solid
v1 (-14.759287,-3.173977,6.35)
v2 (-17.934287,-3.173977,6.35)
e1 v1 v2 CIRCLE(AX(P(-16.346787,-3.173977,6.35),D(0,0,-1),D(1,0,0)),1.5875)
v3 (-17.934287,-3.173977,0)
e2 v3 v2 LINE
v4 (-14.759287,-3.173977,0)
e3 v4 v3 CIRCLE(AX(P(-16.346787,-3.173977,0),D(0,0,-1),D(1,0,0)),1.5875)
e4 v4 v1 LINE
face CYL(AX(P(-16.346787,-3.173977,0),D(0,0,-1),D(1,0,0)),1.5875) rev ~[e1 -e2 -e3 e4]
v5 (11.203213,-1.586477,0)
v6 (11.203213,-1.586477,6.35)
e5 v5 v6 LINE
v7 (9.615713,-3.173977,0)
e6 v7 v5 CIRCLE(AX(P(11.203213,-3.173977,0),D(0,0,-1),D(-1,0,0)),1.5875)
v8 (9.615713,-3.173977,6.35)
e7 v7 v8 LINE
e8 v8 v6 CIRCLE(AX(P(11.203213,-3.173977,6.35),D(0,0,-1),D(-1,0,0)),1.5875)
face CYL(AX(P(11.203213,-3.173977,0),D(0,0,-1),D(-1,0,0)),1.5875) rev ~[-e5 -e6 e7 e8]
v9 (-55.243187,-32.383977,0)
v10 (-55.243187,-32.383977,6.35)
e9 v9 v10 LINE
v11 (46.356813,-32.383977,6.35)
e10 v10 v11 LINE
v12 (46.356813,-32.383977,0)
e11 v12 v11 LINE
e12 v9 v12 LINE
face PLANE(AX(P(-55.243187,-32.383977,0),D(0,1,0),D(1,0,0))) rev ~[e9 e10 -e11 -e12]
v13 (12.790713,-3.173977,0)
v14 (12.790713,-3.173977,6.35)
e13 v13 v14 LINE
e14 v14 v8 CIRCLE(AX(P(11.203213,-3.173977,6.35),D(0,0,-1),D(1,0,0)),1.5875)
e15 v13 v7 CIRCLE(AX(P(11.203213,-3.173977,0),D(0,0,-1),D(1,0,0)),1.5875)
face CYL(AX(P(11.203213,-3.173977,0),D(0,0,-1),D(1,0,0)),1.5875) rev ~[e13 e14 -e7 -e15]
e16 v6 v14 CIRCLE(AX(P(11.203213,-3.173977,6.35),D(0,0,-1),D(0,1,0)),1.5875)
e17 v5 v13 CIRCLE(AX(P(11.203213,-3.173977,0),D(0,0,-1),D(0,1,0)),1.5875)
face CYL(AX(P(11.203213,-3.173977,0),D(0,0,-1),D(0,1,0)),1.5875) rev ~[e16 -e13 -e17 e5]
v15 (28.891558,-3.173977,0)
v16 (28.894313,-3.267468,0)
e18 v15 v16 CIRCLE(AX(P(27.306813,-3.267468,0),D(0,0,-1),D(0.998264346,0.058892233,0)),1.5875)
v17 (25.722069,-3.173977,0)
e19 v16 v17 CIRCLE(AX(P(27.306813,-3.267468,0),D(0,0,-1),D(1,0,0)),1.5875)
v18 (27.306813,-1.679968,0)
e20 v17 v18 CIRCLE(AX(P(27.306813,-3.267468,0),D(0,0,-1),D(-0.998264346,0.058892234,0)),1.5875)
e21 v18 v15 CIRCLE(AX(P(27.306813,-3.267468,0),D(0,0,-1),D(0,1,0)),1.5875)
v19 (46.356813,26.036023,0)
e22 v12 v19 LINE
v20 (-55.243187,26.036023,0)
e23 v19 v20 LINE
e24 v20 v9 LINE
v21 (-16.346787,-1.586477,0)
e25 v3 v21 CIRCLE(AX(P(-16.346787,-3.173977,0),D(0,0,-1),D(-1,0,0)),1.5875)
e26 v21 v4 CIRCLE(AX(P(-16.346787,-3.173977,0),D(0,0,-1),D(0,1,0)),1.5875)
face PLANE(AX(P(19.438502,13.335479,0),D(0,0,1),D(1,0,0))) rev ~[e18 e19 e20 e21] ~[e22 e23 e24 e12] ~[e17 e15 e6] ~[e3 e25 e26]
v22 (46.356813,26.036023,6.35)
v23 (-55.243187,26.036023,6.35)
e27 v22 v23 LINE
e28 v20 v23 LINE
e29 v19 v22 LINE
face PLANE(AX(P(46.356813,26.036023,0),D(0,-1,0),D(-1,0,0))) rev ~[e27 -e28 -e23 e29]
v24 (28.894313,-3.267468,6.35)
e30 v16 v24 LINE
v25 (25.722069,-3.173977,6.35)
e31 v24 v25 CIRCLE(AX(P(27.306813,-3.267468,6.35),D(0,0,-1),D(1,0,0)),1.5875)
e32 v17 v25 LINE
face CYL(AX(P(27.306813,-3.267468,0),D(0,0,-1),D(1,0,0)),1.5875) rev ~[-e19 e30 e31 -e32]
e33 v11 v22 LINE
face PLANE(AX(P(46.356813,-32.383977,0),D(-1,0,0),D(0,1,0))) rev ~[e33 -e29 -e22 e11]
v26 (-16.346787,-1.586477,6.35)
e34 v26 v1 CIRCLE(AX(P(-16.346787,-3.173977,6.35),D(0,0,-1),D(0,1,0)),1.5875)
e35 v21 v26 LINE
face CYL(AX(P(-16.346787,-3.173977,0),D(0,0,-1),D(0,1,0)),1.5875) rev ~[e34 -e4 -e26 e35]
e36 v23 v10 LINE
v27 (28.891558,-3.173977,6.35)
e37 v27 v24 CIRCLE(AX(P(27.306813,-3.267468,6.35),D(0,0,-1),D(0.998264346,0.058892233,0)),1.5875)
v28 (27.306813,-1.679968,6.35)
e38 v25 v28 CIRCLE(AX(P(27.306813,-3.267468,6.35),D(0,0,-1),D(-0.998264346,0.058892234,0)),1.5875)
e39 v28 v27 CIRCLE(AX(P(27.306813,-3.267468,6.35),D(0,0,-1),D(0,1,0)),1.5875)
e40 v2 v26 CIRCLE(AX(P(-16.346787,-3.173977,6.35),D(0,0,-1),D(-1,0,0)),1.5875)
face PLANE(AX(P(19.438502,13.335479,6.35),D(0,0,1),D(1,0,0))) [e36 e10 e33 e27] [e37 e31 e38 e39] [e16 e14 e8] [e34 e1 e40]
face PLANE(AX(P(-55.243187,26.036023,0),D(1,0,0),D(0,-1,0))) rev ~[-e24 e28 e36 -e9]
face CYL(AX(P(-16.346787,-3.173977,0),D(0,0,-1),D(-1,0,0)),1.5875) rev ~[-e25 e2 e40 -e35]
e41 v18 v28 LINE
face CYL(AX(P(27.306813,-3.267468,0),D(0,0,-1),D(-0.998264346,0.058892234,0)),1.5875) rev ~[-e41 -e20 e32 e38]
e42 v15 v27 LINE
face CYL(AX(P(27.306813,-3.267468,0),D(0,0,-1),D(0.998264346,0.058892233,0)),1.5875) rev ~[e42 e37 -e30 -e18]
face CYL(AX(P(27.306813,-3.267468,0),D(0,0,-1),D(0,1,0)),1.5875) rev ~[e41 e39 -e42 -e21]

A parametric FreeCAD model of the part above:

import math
import FreeCAD as App
import Part
import Sketcher
Q = App.Units.Quantity


def add_polygon(sketch, points):
    """Adds a closed chain of lines whose ends are joined by coincident constraints."""
    first, n = sketch.GeometryCount, len(points)
    for a, b in zip(points, points[1:] + points[:1]):
        sketch.addGeometry(Part.LineSegment(App.Vector(*a, 0), App.Vector(*b, 0)), False)
    for i in range(n):
        sketch.addConstraint(Sketcher.Constraint("Coincident", first + i, 2, first + (i + 1) % n, 1))

doc = App.newDocument("Part")
body = doc.addObject("PartDesign::Body", "Body")

# Sketch on XY plane
sketch1 = body.newObject("Sketcher::SketchObject", "Sketch")
sketch1.AttachmentSupport = (doc.getObject("XY_Plane"), [""])
sketch1.MapMode = "FlatFace"
add_polygon(sketch1, [(-55.24, 26.04), (-55.24, -32.38), (46.36, -32.38), (46.36, 26.04)])  # lines 0-3
sketch1.addGeometry(Part.ArcOfCircle(Part.Circle(App.Vector(-16.35, -3.17, 0), App.Vector(0, 0, 1), 1.59), math.radians(180), math.radians(360)), False)  # 4
sketch1.addGeometry(Part.ArcOfCircle(Part.Circle(App.Vector(-16.35, -3.17, 0), App.Vector(0, 0, 1), 1.59), math.radians(90), math.radians(180)), False)  # 5
sketch1.addGeometry(Part.ArcOfCircle(Part.Circle(App.Vector(-16.35, -3.17, 0), App.Vector(0, 0, 1), 1.59), math.radians(0), math.radians(90)), False)  # 6
sketch1.addGeometry(Part.ArcOfCircle(Part.Circle(App.Vector(11.2, -3.17, 0), App.Vector(0, 0, 1), 1.59), math.radians(0), math.radians(90)), False)  # 7
sketch1.addGeometry(Part.ArcOfCircle(Part.Circle(App.Vector(11.2, -3.17, 0), App.Vector(0, 0, 1), 1.59), math.radians(180), math.radians(360)), False)  # 8
sketch1.addGeometry(Part.ArcOfCircle(Part.Circle(App.Vector(11.2, -3.17, 0), App.Vector(0, 0, 1), 1.59), math.radians(90), math.radians(180)), False)  # 9
sketch1.addGeometry(Part.ArcOfCircle(Part.Circle(App.Vector(27.31, -3.27, 0), App.Vector(0, 0, 1), 1.59), math.radians(0), math.radians(3.38)), False)  # 10
sketch1.addGeometry(Part.ArcOfCircle(Part.Circle(App.Vector(27.31, -3.27, 0), App.Vector(0, 0, 1), 1.59), math.radians(177), math.radians(360)), False)  # 11
sketch1.addGeometry(Part.ArcOfCircle(Part.Circle(App.Vector(27.31, -3.27, 0), App.Vector(0, 0, 1), 1.59), math.radians(90), math.radians(177)), False)  # 12
sketch1.addGeometry(Part.ArcOfCircle(Part.Circle(App.Vector(27.31, -3.27, 0), App.Vector(0, 0, 1), 1.59), math.radians(3), math.radians(90)), False)  # 13
sketch1.addConstraint([
    Sketcher.Constraint("Tangent", 4, 1, 5, 2),
    Sketcher.Constraint("Tangent", 5, 1, 6, 2),
    Sketcher.Constraint("Tangent", 6, 1, 4, 2),
    Sketcher.Constraint("Tangent", 7, 1, 8, 2),
    Sketcher.Constraint("Tangent", 8, 1, 9, 2),
    Sketcher.Constraint("Tangent", 9, 1, 7, 2),
    Sketcher.Constraint("Tangent", 10, 1, 11, 2),
    Sketcher.Constraint("Tangent", 11, 1, 12, 2),
    Sketcher.Constraint("Tangent", 12, 1, 13, 2),
    Sketcher.Constraint("Tangent", 13, 1, 10, 2),
    Sketcher.Constraint("Vertical", 0),
    Sketcher.Constraint("Horizontal", 1),
    Sketcher.Constraint("Vertical", 2),
    Sketcher.Constraint("Horizontal", 3),
    Sketcher.Constraint("Equal", 6, 7),
    Sketcher.Constraint("Equal", 9, 10),
    Sketcher.Constraint("Equal", 10, 11),
    Sketcher.Constraint("Horizontal", 6, 3, 7, 3),
    Sketcher.Constraint("Horizontal", 9, 3, 4, 1),
    Sketcher.Constraint("Horizontal", 4, 1, 6, 1),
    Sketcher.Constraint("Horizontal", 6, 1, 7, 1),
    Sketcher.Constraint("Horizontal", 7, 1, 8, 1),
    Sketcher.Constraint("Horizontal", 13, 3, 10, 1),
    Sketcher.Constraint("Horizontal", 8, 1, 11, 1),
    Sketcher.Constraint("Horizontal", 11, 1, 13, 1),
    Sketcher.Constraint("Vertical", 6, 3, 5, 1),
    Sketcher.Constraint("Vertical", 8, 3, 9, 1),
    Sketcher.Constraint("Vertical", 13, 3, 12, 1),
    Sketcher.Constraint("DistanceX", 1, 1, 1, 2, Q("4 in")),
    Sketcher.Constraint("DistanceY", 0, 2, 0, 1, Q("2.3 in")),
    Sketcher.Constraint("Radius", 4, Q("0.0625 in")),
    Sketcher.Constraint("DistanceY", 0, 2, 4, 3, Q("1.15 in")),
    Sketcher.Constraint("DistanceX", 11, 3, 1, 2, Q("0.75 in")),
    Sketcher.Constraint("DistanceX", 8, 3, 10, 3, Q("0.634 in")),
    Sketcher.Constraint("DistanceX", 4, 3, 7, 3, Q("27.55 mm")),
    Sketcher.Constraint("DistanceY", 10, 3, -1, 1, Q("3.267468 mm")),
    Sketcher.Constraint("DistanceX", -1, 1, 11, 1, Q("25.722069 mm")),
    Sketcher.Constraint("DistanceY", 10, 3, 8, 3, Q("0.093491 mm")),
])
pad1 = body.newObject("PartDesign::Pad", "Pad")
pad1.Profile = sketch1
pad1.Length = Q("0.25 in")

doc.recompute()
